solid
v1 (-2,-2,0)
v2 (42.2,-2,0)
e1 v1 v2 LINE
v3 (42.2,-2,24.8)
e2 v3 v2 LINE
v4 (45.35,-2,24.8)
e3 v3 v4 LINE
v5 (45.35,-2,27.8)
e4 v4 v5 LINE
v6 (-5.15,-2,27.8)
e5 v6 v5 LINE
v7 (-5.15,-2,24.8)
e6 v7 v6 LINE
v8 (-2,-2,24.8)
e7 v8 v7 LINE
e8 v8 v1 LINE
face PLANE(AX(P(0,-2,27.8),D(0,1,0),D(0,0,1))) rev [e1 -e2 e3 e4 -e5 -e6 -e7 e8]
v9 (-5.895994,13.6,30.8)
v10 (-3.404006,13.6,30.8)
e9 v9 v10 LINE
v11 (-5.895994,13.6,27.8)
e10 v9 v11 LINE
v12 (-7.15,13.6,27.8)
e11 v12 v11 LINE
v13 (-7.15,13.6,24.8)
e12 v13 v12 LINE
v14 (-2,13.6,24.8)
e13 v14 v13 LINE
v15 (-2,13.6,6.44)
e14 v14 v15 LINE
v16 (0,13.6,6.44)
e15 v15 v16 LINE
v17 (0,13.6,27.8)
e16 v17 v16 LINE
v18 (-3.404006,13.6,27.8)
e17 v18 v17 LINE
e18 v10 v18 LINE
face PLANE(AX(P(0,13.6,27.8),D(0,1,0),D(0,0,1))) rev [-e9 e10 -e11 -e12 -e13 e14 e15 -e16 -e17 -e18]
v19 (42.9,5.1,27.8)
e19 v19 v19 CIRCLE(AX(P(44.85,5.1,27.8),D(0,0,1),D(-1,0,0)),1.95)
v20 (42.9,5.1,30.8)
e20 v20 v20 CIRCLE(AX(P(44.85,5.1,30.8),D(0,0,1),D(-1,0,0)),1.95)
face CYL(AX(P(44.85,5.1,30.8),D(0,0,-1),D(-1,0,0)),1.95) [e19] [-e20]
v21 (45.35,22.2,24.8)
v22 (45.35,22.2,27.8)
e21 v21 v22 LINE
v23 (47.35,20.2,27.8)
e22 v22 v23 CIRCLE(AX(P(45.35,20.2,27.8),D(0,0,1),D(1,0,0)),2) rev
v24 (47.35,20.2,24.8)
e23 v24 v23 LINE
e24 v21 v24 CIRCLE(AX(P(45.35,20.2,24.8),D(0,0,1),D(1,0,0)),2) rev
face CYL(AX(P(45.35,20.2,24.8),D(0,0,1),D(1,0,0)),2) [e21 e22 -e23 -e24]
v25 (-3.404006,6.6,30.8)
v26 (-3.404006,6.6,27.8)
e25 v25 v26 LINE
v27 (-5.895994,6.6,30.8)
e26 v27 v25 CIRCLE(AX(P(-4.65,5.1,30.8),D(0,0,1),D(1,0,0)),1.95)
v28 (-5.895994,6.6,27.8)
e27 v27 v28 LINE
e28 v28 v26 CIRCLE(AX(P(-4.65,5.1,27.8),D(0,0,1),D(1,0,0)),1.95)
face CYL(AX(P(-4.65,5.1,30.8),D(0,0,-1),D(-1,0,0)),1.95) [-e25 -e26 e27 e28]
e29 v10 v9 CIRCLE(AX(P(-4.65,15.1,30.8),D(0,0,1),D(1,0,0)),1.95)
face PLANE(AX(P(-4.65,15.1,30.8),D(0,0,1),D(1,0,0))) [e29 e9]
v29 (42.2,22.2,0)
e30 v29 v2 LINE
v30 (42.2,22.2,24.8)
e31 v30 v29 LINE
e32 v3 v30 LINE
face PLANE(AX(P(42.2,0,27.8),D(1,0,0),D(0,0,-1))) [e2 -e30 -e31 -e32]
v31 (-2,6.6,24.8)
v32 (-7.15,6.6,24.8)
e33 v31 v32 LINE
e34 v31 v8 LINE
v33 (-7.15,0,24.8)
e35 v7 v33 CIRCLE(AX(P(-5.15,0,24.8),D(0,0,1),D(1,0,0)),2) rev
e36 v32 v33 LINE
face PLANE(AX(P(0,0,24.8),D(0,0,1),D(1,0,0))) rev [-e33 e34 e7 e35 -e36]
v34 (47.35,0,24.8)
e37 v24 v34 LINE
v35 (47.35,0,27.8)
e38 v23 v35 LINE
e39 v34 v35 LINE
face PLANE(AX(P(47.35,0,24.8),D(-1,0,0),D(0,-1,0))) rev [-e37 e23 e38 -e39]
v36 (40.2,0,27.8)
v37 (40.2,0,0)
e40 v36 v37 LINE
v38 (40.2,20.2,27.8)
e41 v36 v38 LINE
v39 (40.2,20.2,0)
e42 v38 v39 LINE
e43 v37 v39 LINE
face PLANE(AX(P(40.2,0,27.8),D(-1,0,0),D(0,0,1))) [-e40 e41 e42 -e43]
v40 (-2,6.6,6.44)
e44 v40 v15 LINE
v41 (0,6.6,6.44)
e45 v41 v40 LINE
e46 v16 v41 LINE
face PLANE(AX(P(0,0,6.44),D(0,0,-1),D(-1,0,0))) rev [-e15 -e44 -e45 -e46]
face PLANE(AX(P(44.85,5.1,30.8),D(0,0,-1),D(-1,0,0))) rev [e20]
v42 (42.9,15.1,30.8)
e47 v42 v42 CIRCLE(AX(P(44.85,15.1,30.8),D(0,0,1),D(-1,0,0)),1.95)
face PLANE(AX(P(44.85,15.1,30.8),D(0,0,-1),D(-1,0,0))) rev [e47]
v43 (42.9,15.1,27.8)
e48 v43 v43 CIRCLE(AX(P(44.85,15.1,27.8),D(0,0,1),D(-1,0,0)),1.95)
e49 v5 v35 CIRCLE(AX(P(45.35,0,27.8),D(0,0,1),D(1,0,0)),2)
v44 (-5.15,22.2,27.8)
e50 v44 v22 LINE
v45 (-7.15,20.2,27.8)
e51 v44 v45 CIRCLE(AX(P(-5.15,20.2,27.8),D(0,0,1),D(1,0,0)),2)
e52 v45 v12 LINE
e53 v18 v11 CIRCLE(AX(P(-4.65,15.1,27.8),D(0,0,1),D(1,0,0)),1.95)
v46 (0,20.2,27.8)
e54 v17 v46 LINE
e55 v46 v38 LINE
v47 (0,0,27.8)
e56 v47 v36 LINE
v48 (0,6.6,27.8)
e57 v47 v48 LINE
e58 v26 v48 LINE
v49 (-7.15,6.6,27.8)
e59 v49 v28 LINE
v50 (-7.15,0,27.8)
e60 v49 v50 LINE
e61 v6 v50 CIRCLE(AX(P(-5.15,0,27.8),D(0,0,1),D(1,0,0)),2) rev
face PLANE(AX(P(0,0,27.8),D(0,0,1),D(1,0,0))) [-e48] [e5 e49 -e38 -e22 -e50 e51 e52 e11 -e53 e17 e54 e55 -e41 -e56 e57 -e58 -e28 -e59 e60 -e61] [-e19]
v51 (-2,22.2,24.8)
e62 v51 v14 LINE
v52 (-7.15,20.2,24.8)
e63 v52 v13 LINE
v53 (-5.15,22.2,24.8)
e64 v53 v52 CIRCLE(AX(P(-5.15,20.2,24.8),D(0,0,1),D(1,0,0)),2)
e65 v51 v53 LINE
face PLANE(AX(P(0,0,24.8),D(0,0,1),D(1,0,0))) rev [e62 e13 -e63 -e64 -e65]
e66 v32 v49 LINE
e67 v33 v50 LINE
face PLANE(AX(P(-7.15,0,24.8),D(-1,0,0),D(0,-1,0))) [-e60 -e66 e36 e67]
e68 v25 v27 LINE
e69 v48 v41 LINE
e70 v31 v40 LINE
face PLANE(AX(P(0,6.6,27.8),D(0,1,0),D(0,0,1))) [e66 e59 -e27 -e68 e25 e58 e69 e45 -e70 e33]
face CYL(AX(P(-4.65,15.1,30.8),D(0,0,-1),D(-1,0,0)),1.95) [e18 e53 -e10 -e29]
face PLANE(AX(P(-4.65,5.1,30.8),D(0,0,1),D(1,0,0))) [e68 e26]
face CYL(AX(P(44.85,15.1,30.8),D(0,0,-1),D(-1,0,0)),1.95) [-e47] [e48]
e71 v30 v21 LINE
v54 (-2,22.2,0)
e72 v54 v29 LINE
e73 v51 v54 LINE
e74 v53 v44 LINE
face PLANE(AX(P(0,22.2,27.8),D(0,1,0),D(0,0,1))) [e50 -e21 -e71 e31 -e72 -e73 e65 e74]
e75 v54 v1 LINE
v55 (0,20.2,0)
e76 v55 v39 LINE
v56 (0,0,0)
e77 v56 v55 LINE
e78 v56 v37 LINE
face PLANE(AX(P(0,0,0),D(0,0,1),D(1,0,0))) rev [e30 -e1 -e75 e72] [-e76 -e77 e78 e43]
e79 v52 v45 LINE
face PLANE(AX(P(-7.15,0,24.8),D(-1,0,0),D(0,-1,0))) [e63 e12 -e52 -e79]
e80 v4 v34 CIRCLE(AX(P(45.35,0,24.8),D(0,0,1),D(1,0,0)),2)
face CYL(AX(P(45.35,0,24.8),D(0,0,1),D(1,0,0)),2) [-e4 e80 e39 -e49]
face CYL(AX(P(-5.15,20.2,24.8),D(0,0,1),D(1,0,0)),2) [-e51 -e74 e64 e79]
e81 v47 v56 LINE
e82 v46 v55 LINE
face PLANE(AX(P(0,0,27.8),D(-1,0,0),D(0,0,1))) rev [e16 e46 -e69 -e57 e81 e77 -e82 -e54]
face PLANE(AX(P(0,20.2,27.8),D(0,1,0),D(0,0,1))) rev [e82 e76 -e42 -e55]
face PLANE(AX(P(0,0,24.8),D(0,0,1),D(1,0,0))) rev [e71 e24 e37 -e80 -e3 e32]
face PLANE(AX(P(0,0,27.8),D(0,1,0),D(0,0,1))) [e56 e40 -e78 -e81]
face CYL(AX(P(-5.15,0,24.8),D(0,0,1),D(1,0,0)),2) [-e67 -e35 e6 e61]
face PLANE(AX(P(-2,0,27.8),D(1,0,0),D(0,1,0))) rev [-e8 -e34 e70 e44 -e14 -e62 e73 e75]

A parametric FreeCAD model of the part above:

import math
import FreeCAD as App
import Part
import Sketcher

V = App.Vector
Q = App.Units.Quantity


def add_polygon(sketch, points):
    """Adds a closed chain of lines whose ends are joined by coincident constraints."""
    first, n = sketch.GeometryCount, len(points)
    for a, b in zip(points, points[1:] + points[:1]):
        sketch.addGeometry(Part.LineSegment(App.Vector(*a, 0), App.Vector(*b, 0)), False)
    for i in range(n):
        sketch.addConstraint(Sketcher.Constraint("Coincident", first + i, 2, first + (i + 1) % n, 1))

doc = App.newDocument("Part")
body = doc.addObject("PartDesign::Body", "Body")

# Sketch on XY plane
sketch1 = body.newObject("Sketcher::SketchObject", "Sketch")
sketch1.AttachmentSupport = (doc.getObject("XY_Plane"), [""])
sketch1.MapMode = "FlatFace"
add_polygon(sketch1, [(-2, 22.2), (-2, 13.6), (0, 13.6), (0, 20.2), (40.2, 20.2), (40.2, 0), (0, 0), (0, 6.6), (-2, 6.6), (-2, -2), (42.2, -2), (42.2, 22.2)])  # lines 0-11
sketch1.addConstraint(Sketcher.Constraint("Vertical", 0))
sketch1.addConstraint(Sketcher.Constraint("Horizontal", 1))
sketch1.addConstraint(Sketcher.Constraint("Vertical", 2))
sketch1.addConstraint(Sketcher.Constraint("Horizontal", 3))
sketch1.addConstraint(Sketcher.Constraint("Vertical", 4))
sketch1.addConstraint(Sketcher.Constraint("Horizontal", 5))
sketch1.addConstraint(Sketcher.Constraint("Vertical", 6))
sketch1.addConstraint(Sketcher.Constraint("Horizontal", 7))
sketch1.addConstraint(Sketcher.Constraint("Vertical", 8))
sketch1.addConstraint(Sketcher.Constraint("Horizontal", 9))
sketch1.addConstraint(Sketcher.Constraint("Vertical", 10))
sketch1.addConstraint(Sketcher.Constraint("Horizontal", 11))
sketch1.addConstraint(Sketcher.Constraint("Coincident", 5, 2, -1, 1))
sketch1.addConstraint(Sketcher.Constraint("PointOnObject", 1, 2, -2))
sketch1.addConstraint(Sketcher.Constraint("Vertical", 0, 2, 7, 2))
sketch1.addConstraint(Sketcher.Constraint("Equal", 2, 6))
sketch1.addConstraint(Sketcher.Constraint("Equal", 0, 8))
sketch1.addConstraint(Sketcher.Constraint("DistanceX", 1, 1, 1, 2, Q("2 mm")))
sketch1.addConstraint(Sketcher.Constraint("DistanceX", 3, 1, 3, 2, Q("40.2 mm")))
sketch1.addConstraint(Sketcher.Constraint("DistanceX", 9, 1, 9, 2, Q("44.2 mm")))
sketch1.addConstraint(Sketcher.Constraint("DistanceY", 0, 2, 0, 1, Q("8.6 mm")))
sketch1.addConstraint(Sketcher.Constraint("DistanceY", 2, 1, 2, 2, Q("6.6 mm")))
sketch1.addConstraint(Sketcher.Constraint("DistanceY", 4, 2, 4, 1, Q("20.2 mm")))
pad1 = body.newObject("PartDesign::Pad", "Pad")
pad1.Profile = sketch1
pad1.Length = 27.8

# Sketch on XY plane
sketch2 = body.newObject("Sketcher::SketchObject", "Sketch001")
sketch2.AttachmentSupport = (doc.getObject("XY_Plane"), [""])
sketch2.MapMode = "FlatFace"
add_polygon(sketch2, [(0, 13.6), (0, 6.6), (-2, 6.6), (-2, 13.6)])  # lines 0-3
sketch2.addConstraint(Sketcher.Constraint("Vertical", 0))
sketch2.addConstraint(Sketcher.Constraint("Horizontal", 1))
sketch2.addConstraint(Sketcher.Constraint("Vertical", 2))
sketch2.addConstraint(Sketcher.Constraint("Horizontal", 3))
sketch2.addConstraint(Sketcher.Constraint("PointOnObject", 0, 2, -2))
sketch2.addConstraint(Sketcher.Constraint("DistanceX", 1, 2, 1, 1, Q("2 mm")))
sketch2.addConstraint(Sketcher.Constraint("DistanceY", 0, 2, 0, 1, Q("7 mm")))
sketch2.addConstraint(Sketcher.Constraint("DistanceY", -1, 1, 0, 2, Q("6.6 mm")))
pad2 = body.newObject("PartDesign::Pad", "Pad001")
pad2.Profile = sketch2
pad2.Length = 6.44

# Sketch on XY plane
sketch3 = body.newObject("Sketcher::SketchObject", "Sketch002")
sketch3.AttachmentSupport = (doc.getObject("XY_Plane"), [""])
sketch3.MapMode = "FlatFace"
sketch3.AttachmentOffset = App.Placement(V(0, 0, 27.8), App.Rotation())
sketch3.addGeometry(Part.LineSegment(V(-2, 13.6, 0), V(-2, 22.2, 0)), False)
sketch3.addGeometry(Part.LineSegment(V(-2, 22.2, 0), V(-5.15, 22.2, 0)), False)
sketch3.addGeometry(Part.ArcOfCircle(Part.Circle(V(-5.15, 20.2, 0), V(0, 0, 1), 2), math.radians(90), math.radians(180)), False)
sketch3.addGeometry(Part.LineSegment(V(-7.15, 20.2, 0), V(-7.15, 13.6, 0)), False)
sketch3.addGeometry(Part.LineSegment(V(-7.15, 13.6, 0), V(-2, 13.6, 0)), False)
sketch3.addGeometry(Part.LineSegment(V(-2, -2, 0), V(-2, 6.6, 0)), False)
sketch3.addGeometry(Part.LineSegment(V(-2, 6.6, 0), V(-7.15, 6.6, 0)), False)
sketch3.addGeometry(Part.LineSegment(V(-7.15, 6.6, 0), V(-7.15, 0, 0)), False)
sketch3.addGeometry(Part.ArcOfCircle(Part.Circle(V(-5.15, 0, 0), V(0, 0, 1), 2), math.radians(-180), math.radians(-90)), False)
sketch3.addGeometry(Part.LineSegment(V(-5.15, -2, 0), V(-2, -2, 0)), False)
sketch3.addGeometry(Part.LineSegment(V(42.2, -2, 0), V(45.35, -2, 0)), False)
sketch3.addGeometry(Part.ArcOfCircle(Part.Circle(V(45.35, 0, 0), V(0, 0, 1), 2), math.radians(-90), math.radians(0)), False)
sketch3.addGeometry(Part.LineSegment(V(47.35, 0, 0), V(47.35, 20.2, 0)), False)
sketch3.addGeometry(Part.ArcOfCircle(Part.Circle(V(45.35, 20.2, 0), V(0, 0, 1), 2), math.radians(0), math.radians(90)), False)
sketch3.addGeometry(Part.LineSegment(V(45.35, 22.2, 0), V(42.2, 22.2, 0)), False)
sketch3.addGeometry(Part.LineSegment(V(42.2, 22.2, 0), V(42.2, -2, 0)), False)
sketch3.addConstraint(Sketcher.Constraint("Coincident", 0, 2, 1, 1))
sketch3.addConstraint(Sketcher.Constraint("Tangent", 1, 2, 2, 1))
sketch3.addConstraint(Sketcher.Constraint("Tangent", 2, 2, 3, 1))
sketch3.addConstraint(Sketcher.Constraint("Coincident", 3, 2, 4, 1))
sketch3.addConstraint(Sketcher.Constraint("Coincident", 4, 2, 0, 1))
sketch3.addConstraint(Sketcher.Constraint("Coincident", 5, 2, 6, 1))
sketch3.addConstraint(Sketcher.Constraint("Coincident", 6, 2, 7, 1))
sketch3.addConstraint(Sketcher.Constraint("Tangent", 7, 2, 8, 1))
sketch3.addConstraint(Sketcher.Constraint("Tangent", 8, 2, 9, 1))
sketch3.addConstraint(Sketcher.Constraint("Coincident", 9, 2, 5, 1))
sketch3.addConstraint(Sketcher.Constraint("Tangent", 10, 2, 11, 1))
sketch3.addConstraint(Sketcher.Constraint("Tangent", 11, 2, 12, 1))
sketch3.addConstraint(Sketcher.Constraint("Tangent", 12, 2, 13, 1))
sketch3.addConstraint(Sketcher.Constraint("Tangent", 13, 2, 14, 1))
sketch3.addConstraint(Sketcher.Constraint("Coincident", 14, 2, 15, 1))
sketch3.addConstraint(Sketcher.Constraint("Coincident", 15, 2, 10, 1))
sketch3.addConstraint(Sketcher.Constraint("Vertical", 0))
sketch3.addConstraint(Sketcher.Constraint("Horizontal", 1))
sketch3.addConstraint(Sketcher.Constraint("Vertical", 3))
sketch3.addConstraint(Sketcher.Constraint("Horizontal", 4))
sketch3.addConstraint(Sketcher.Constraint("Vertical", 5))
sketch3.addConstraint(Sketcher.Constraint("Horizontal", 6))
sketch3.addConstraint(Sketcher.Constraint("Vertical", 7))
sketch3.addConstraint(Sketcher.Constraint("Horizontal", 9))
sketch3.addConstraint(Sketcher.Constraint("Horizontal", 10))
sketch3.addConstraint(Sketcher.Constraint("Vertical", 12))
sketch3.addConstraint(Sketcher.Constraint("Horizontal", 14))
sketch3.addConstraint(Sketcher.Constraint("Vertical", 15))
sketch3.addConstraint(Sketcher.Constraint("Equal", 2, 8))
sketch3.addConstraint(Sketcher.Constraint("Equal", 8, 11))
sketch3.addConstraint(Sketcher.Constraint("Equal", 11, 13))
sketch3.addConstraint(Sketcher.Constraint("PointOnObject", 8, 3, -1))
sketch3.addConstraint(Sketcher.Constraint("PointOnObject", 11, 3, -1))
sketch3.addConstraint(Sketcher.Constraint("Horizontal", 2, 3, 13, 3))
sketch3.addConstraint(Sketcher.Constraint("Vertical", 2, 3, 8, 3))
sketch3.addConstraint(Sketcher.Constraint("Vertical", 4, 2, 5, 2))
sketch3.addConstraint(Sketcher.Constraint("Equal", 9, 10))
sketch3.addConstraint(Sketcher.Constraint("Equal", 0, 5))
sketch3.addConstraint(Sketcher.Constraint("Radius", 2, Q("2 mm")))
sketch3.addConstraint(Sketcher.Constraint("DistanceY", 0, 1, 0, 2, Q("8.6 mm")))
sketch3.addConstraint(Sketcher.Constraint("DistanceY", 12, 1, 12, 2, Q("20.2 mm")))
sketch3.addConstraint(Sketcher.Constraint("DistanceX", 0, 2, -1, 1, Q("2 mm")))
sketch3.addConstraint(Sketcher.Constraint("DistanceX", 1, 2, 1, 1, Q("3.15 mm")))
sketch3.addConstraint(Sketcher.Constraint("DistanceX", -1, 1, 14, 2, Q("42.2 mm")))
pad3 = body.newObject("PartDesign::Pad", "Pad002")
pad3.Profile = sketch3
pad3.Length = 3
pad3.Reversed = True

# Sketch on XY plane
sketch4 = body.newObject("Sketcher::SketchObject", "Sketch003")
sketch4.AttachmentSupport = (doc.getObject("XY_Plane"), [""])
sketch4.MapMode = "FlatFace"
sketch4.AttachmentOffset = App.Placement(V(0, 0, 27.8), App.Rotation())
sketch4.addGeometry(Part.Circle(V(44.85, 5.1, 0), V(0, 0, 1), 1.95), False)
sketch4.addGeometry(Part.Circle(V(44.85, 15.1, 0), V(0, 0, 1), 1.95), False)
sketch4.addGeometry(Part.LineSegment(V(-5.895994, 13.6, 0), V(-3.404006, 13.6, 0)), False)
sketch4.addGeometry(Part.ArcOfCircle(Part.Circle(V(-4.65, 15.1, 0), V(0, 0, 1), 1.95), math.radians(-50.284863), math.radians(230.284863)), False)
sketch4.addGeometry(Part.LineSegment(V(-3.404006, 6.6, 0), V(-5.895994, 6.6, 0)), False)
sketch4.addGeometry(Part.ArcOfCircle(Part.Circle(V(-4.65, 5.1, 0), V(0, 0, 1), 1.95), math.radians(129.715137), math.radians(410.284863)), False)
sketch4.addConstraint(Sketcher.Constraint("Coincident", 2, 1, 3, 2))
sketch4.addConstraint(Sketcher.Constraint("Coincident", 3, 1, 2, 2))
sketch4.addConstraint(Sketcher.Constraint("Coincident", 4, 1, 5, 2))
sketch4.addConstraint(Sketcher.Constraint("Coincident", 5, 1, 4, 2))
sketch4.addConstraint(Sketcher.Constraint("Horizontal", 2))
sketch4.addConstraint(Sketcher.Constraint("Horizontal", 4))
sketch4.addConstraint(Sketcher.Constraint("Equal", 0, 1))
sketch4.addConstraint(Sketcher.Constraint("Equal", 1, 3))
sketch4.addConstraint(Sketcher.Constraint("Equal", 3, 5))
sketch4.addConstraint(Sketcher.Constraint("Horizontal", 1, 3, 3, 3))
sketch4.addConstraint(Sketcher.Constraint("Horizontal", 0, 3, 5, 3))
sketch4.addConstraint(Sketcher.Constraint("Vertical", 0, 3, 1, 3))
sketch4.addConstraint(Sketcher.Constraint("Vertical", 3, 3, 5, 3))
sketch4.addConstraint(Sketcher.Constraint("Vertical", 3, 1, 4, 1))
sketch4.addConstraint(Sketcher.Constraint("Diameter", 0, Q("3.9 mm")))
sketch4.addConstraint(Sketcher.Constraint("DistanceY", 0, 3, 1, 3, Q("10 mm")))
sketch4.addConstraint(Sketcher.Constraint("DistanceY", 4, 1, 3, 1, Q("7 mm")))
sketch4.addConstraint(Sketcher.Constraint("DistanceY", -1, 1, 0, 3, Q("5.1 mm")))
sketch4.addConstraint(Sketcher.Constraint("DistanceX", 3, 3, 1, 3, Q("49.5 mm")))
sketch4.addConstraint(Sketcher.Constraint("DistanceX", -1, 1, 0, 3, Q("44.85 mm")))
pad4 = body.newObject("PartDesign::Pad", "Pad003")
pad4.Profile = sketch4
pad4.Length = 3

doc.recompute()
